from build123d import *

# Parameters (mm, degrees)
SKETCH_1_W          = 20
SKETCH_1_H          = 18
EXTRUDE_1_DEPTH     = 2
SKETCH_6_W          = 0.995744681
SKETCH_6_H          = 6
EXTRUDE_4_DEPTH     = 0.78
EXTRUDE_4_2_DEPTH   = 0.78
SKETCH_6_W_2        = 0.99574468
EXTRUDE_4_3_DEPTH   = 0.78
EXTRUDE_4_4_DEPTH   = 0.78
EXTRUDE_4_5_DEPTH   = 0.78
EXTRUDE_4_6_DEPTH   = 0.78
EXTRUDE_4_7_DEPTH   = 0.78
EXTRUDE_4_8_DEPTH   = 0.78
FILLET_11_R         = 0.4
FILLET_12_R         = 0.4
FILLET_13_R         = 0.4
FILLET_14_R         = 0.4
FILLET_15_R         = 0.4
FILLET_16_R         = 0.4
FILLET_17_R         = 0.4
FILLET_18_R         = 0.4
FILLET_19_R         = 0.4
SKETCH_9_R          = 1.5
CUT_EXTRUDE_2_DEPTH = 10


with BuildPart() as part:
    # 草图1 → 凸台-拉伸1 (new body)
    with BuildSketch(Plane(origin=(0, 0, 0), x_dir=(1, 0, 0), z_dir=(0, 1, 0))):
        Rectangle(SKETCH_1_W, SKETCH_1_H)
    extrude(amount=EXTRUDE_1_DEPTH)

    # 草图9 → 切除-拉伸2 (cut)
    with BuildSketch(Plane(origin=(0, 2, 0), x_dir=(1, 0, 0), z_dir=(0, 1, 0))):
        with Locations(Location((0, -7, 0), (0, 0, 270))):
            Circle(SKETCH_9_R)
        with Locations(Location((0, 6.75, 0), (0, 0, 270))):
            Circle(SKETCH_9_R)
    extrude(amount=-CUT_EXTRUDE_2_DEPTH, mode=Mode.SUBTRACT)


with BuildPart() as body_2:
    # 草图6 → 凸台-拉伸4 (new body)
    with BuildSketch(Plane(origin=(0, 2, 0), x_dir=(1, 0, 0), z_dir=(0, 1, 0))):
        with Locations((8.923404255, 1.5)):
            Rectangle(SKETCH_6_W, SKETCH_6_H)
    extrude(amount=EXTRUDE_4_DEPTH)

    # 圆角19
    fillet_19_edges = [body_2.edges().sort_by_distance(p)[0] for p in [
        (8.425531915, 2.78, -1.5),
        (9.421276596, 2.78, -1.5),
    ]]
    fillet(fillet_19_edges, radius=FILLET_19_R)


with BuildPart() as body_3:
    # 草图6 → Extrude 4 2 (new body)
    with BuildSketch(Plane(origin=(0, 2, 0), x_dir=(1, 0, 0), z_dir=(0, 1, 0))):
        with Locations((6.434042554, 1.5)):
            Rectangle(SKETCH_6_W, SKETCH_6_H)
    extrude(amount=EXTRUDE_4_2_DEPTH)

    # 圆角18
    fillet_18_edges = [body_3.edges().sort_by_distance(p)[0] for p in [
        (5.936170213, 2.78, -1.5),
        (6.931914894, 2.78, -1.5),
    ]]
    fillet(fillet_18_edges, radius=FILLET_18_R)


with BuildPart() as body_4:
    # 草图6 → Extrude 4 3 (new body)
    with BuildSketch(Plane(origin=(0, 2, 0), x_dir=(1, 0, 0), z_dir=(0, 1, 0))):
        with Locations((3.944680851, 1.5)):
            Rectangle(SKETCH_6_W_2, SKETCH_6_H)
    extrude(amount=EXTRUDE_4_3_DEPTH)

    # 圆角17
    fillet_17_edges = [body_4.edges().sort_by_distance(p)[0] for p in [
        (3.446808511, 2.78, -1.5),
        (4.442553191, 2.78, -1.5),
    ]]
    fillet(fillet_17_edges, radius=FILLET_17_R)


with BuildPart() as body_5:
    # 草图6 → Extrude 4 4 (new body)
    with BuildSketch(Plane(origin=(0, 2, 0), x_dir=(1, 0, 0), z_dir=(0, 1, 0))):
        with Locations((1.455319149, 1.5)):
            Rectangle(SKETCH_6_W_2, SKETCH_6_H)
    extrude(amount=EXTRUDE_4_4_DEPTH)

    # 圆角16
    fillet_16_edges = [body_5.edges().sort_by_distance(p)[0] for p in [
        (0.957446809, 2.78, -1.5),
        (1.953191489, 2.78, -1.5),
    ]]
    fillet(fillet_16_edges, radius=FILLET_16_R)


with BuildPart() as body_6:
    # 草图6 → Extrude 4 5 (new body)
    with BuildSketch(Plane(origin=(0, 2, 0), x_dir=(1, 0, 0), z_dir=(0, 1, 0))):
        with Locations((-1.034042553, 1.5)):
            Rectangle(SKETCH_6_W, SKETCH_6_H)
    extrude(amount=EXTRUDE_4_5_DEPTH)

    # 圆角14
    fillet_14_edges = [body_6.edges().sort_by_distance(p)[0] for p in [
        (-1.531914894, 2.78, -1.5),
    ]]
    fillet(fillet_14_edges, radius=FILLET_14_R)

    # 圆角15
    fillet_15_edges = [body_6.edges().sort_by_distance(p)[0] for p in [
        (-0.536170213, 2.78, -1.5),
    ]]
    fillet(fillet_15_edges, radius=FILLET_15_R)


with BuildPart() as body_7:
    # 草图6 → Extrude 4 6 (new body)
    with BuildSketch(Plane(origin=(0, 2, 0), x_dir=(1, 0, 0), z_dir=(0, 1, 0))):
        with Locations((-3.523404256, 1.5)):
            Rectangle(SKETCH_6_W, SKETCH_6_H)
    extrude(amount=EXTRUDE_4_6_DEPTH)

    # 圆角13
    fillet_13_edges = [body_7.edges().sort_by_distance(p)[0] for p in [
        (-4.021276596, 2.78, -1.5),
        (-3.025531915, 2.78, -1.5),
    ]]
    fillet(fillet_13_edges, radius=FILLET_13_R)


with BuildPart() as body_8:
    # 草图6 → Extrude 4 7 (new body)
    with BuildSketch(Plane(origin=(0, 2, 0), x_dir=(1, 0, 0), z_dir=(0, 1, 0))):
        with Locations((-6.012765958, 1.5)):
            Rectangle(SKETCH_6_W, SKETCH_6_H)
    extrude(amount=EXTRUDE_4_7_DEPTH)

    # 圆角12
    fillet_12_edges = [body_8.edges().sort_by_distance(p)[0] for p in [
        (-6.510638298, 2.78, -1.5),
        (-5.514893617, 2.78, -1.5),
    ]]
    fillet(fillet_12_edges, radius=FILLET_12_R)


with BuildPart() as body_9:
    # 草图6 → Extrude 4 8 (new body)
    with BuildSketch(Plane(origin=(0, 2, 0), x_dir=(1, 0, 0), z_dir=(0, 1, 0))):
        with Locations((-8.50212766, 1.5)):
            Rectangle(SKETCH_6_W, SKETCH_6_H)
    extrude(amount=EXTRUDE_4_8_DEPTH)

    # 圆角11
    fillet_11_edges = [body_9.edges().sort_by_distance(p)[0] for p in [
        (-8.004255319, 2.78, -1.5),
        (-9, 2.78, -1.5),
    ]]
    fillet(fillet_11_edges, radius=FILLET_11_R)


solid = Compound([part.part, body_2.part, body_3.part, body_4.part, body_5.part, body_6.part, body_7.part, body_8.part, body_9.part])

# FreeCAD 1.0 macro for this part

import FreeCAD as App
import Part
import Sketcher


def edges_at(feature, points):
    """Names of the edges that pass closest to the given points."""
    edges = feature.Shape.Edges
    near = lambda p: min(range(len(edges)), key=lambda i: edges[i].distToShape(Part.Vertex(*p))[0])
    return sorted({f"Edge{near(p) + 1}" for p in points})


def add_polygon(sketch, points):
    """Adds a closed chain of lines whose ends are joined by coincident constraints."""
    first, n = sketch.GeometryCount, len(points)
    for a, b in zip(points, points[1:] + points[:1]):
        sketch.addGeometry(Part.LineSegment(App.Vector(*a, 0), App.Vector(*b, 0)), False)
    for i in range(n):
        sketch.addConstraint(Sketcher.Constraint("Coincident", first + i, 2, first + (i + 1) % n, 1))

doc = App.newDocument("Part")
params = doc.addObject("Spreadsheet::Sheet", "Params")
for row, (alias, value) in enumerate([
    ("sketch1_width", "20 mm"),
    ("sketch1_height", "18 mm"),
    ("pad1_length", "2 mm"),
    ("sketch2_diameter", "3 mm"),
    ("pocket1_length", "10 mm"),
    ("sketch3_height", "6 mm"),
    ("pad2_length", "0.78 mm"),
    ("fillet_radius", "0.4 mm"),
    ("sketch4_height", "6 mm"),
    ("pad3_length", "0.78 mm"),
    ("fillet2_radius", "0.4 mm"),
    ("sketch5_height", "6 mm"),
    ("pad4_length", "0.78 mm"),
    ("fillet3_radius", "0.4 mm"),
    ("sketch6_height", "6 mm"),
    ("pad5_length", "0.78 mm"),
    ("fillet4_radius", "0.4 mm"),
    ("sketch7_height", "6 mm"),
    ("pad6_length", "0.78 mm"),
    ("fillet5_radius", "0.4 mm"),
    ("fillet6_radius", "0.4 mm"),
    ("sketch8_height", "6 mm"),
    ("pad7_length", "0.78 mm"),
    ("fillet7_radius", "0.4 mm"),
    ("sketch9_height", "6 mm"),
    ("pad8_length", "0.78 mm"),
    ("fillet8_radius", "0.4 mm"),
    ("sketch10_height", "6 mm"),
    ("pad9_length", "0.78 mm"),
    ("fillet9_radius", "0.4 mm"),
], start=1):
    params.set(f"A{row}", alias)
    params.set(f"B{row}", "=" + value)
    params.setAlias(f"B{row}", alias)

body = doc.addObject("PartDesign::Body", "Body")

# Sketch on XZ plane
sketch1 = body.newObject("Sketcher::SketchObject", "Sketch")
sketch1.AttachmentSupport = (doc.getObject("XZ_Plane"), [""])
sketch1.MapMode = "FlatFace"
add_polygon(sketch1, [(-10, -9), (-10, 9), (10, 9), (10, -9)])  # lines 0-3
sketch1.addConstraint(Sketcher.Constraint("Vertical", 0))
sketch1.addConstraint(Sketcher.Constraint("Horizontal", 1))
sketch1.addConstraint(Sketcher.Constraint("Vertical", 2))
sketch1.addConstraint(Sketcher.Constraint("Horizontal", 3))
sketch1.addConstraint(Sketcher.Constraint("Symmetric", 0, 2, 2, 2, -1, 1))
sketch1.addConstraint(Sketcher.Constraint("DistanceX", 1, 1, 1, 2, 20.0))
sketch1.addConstraint(Sketcher.Constraint("DistanceY", 0, 1, 0, 2, 18.0))
sketch1.setExpression("Constraints[9]", "Params.sketch1_width")
sketch1.setExpression("Constraints[10]", "Params.sketch1_height")
pad1 = body.newObject("PartDesign::Pad", "Pad")
pad1.Profile = sketch1
pad1.setExpression("Length", "Params.pad1_length")
pad1.Reversed = True

# Sketch on XZ plane
sketch2 = body.newObject("Sketcher::SketchObject", "Sketch001")
sketch2.AttachmentSupport = (doc.getObject("XZ_Plane"), [""])
sketch2.MapMode = "FlatFace"
sketch2.AttachmentOffset = App.Placement(App.Vector(0, 0, -2), App.Rotation())
sketch2.addGeometry(Part.Circle(App.Vector(0, 7, 0), App.Vector(0, 0, 1), 1.5), False)
sketch2.addGeometry(Part.Circle(App.Vector(0, -6.8, 0), App.Vector(0, 0, 1), 1.5), False)
sketch2.addConstraint(Sketcher.Constraint("Equal", 0, 1))
sketch2.addConstraint(Sketcher.Constraint("PointOnObject", 0, 3, -2))
sketch2.addConstraint(Sketcher.Constraint("PointOnObject", 1, 3, -2))
sketch2.addConstraint(Sketcher.Constraint("Diameter", 0, 3.0))
sketch2.addConstraint(Sketcher.Constraint("DistanceY", -1, 1, 0, 3, 7.0))
sketch2.addConstraint(Sketcher.Constraint("DistanceY", 1, 3, -1, 1, 6.75))
sketch2.setExpression("Constraints[3]", "Params.sketch2_diameter")
pocket1 = body.newObject("PartDesign::Pocket", "Pocket")
pocket1.Profile = sketch2
pocket1.setExpression("Length", "Params.pocket1_length")
pocket1.Reversed = True
body2 = doc.addObject("PartDesign::Body", "Body001")

# Sketch on XZ plane
sketch3 = body2.newObject("Sketcher::SketchObject", "Sketch002")
sketch3.AttachmentSupport = (doc.getObject("XZ_Plane001"), [""])
sketch3.MapMode = "FlatFace"
sketch3.AttachmentOffset = App.Placement(App.Vector(0, 0, -2), App.Rotation())
add_polygon(sketch3, [(8.4, -4.5), (8.4, 1.5), (9.4, 1.5), (9.4, -4.5)])  # lines 0-3
sketch3.addConstraint(Sketcher.Constraint("Vertical", 0))
sketch3.addConstraint(Sketcher.Constraint("Horizontal", 1))
sketch3.addConstraint(Sketcher.Constraint("Vertical", 2))
sketch3.addConstraint(Sketcher.Constraint("Horizontal", 3))
sketch3.addConstraint(Sketcher.Constraint("DistanceY", 0, 1, 0, 2, 6.0))
sketch3.addConstraint(Sketcher.Constraint("DistanceY", -1, 1, 0, 2, 1.5))
sketch3.addConstraint(Sketcher.Constraint("DistanceX", 1, 1, 1, 2, 0.995745))
sketch3.addConstraint(Sketcher.Constraint("DistanceX", -1, 1, 0, 2, 8.425532))
sketch3.setExpression("Constraints[8]", "Params.sketch3_height")
pad2 = body2.newObject("PartDesign::Pad", "Pad001")
pad2.Profile = sketch3
pad2.setExpression("Length", "Params.pad2_length")
pad2.Reversed = True
doc.recompute()

fillet = body2.newObject("PartDesign::Fillet", "Fillet")
fillet.Base = (pad2, edges_at(pad2, [(8.426, 2.78, -1.5), (9.421, 2.78, -1.5)]))
fillet.setExpression("Radius", "Params.fillet_radius")
body3 = doc.addObject("PartDesign::Body", "Body002")

# Sketch on XZ plane
sketch4 = body3.newObject("Sketcher::SketchObject", "Sketch003")
sketch4.AttachmentSupport = (doc.getObject("XZ_Plane002"), [""])
sketch4.MapMode = "FlatFace"
sketch4.AttachmentOffset = App.Placement(App.Vector(0, 0, -2), App.Rotation())
add_polygon(sketch4, [(5.9, -4.5), (5.9, 1.5), (6.9, 1.5), (6.9, -4.5)])  # lines 0-3
sketch4.addConstraint(Sketcher.Constraint("Vertical", 0))
sketch4.addConstraint(Sketcher.Constraint("Horizontal", 1))
sketch4.addConstraint(Sketcher.Constraint("Vertical", 2))
sketch4.addConstraint(Sketcher.Constraint("Horizontal", 3))
sketch4.addConstraint(Sketcher.Constraint("DistanceY", 0, 1, 0, 2, 6.0))
sketch4.addConstraint(Sketcher.Constraint("DistanceY", -1, 1, 0, 2, 1.5))
sketch4.addConstraint(Sketcher.Constraint("DistanceX", 1, 1, 1, 2, 0.995745))
sketch4.addConstraint(Sketcher.Constraint("DistanceX", -1, 1, 0, 2, 5.93617))
sketch4.setExpression("Constraints[8]", "Params.sketch4_height")
pad3 = body3.newObject("PartDesign::Pad", "Pad002")
pad3.Profile = sketch4
pad3.setExpression("Length", "Params.pad3_length")
pad3.Reversed = True
doc.recompute()

fillet2 = body3.newObject("PartDesign::Fillet", "Fillet001")
fillet2.Base = (pad3, edges_at(pad3, [(5.936, 2.78, -1.5), (6.932, 2.78, -1.5)]))
fillet2.setExpression("Radius", "Params.fillet2_radius")
body4 = doc.addObject("PartDesign::Body", "Body003")

# Sketch on XZ plane
sketch5 = body4.newObject("Sketcher::SketchObject", "Sketch004")
sketch5.AttachmentSupport = (doc.getObject("XZ_Plane003"), [""])
sketch5.MapMode = "FlatFace"
sketch5.AttachmentOffset = App.Placement(App.Vector(0, 0, -2), App.Rotation())
add_polygon(sketch5, [(3.4, -4.5), (3.4, 1.5), (4.4, 1.5), (4.4, -4.5)])  # lines 0-3
sketch5.addConstraint(Sketcher.Constraint("Vertical", 0))
sketch5.addConstraint(Sketcher.Constraint("Horizontal", 1))
sketch5.addConstraint(Sketcher.Constraint("Vertical", 2))
sketch5.addConstraint(Sketcher.Constraint("Horizontal", 3))
sketch5.addConstraint(Sketcher.Constraint("DistanceY", 0, 1, 0, 2, 6.0))
sketch5.addConstraint(Sketcher.Constraint("DistanceY", -1, 1, 0, 2, 1.5))
sketch5.addConstraint(Sketcher.Constraint("DistanceX", 1, 1, 1, 2, 0.995745))
sketch5.addConstraint(Sketcher.Constraint("DistanceX", -1, 1, 0, 2, 3.446809))
sketch5.setExpression("Constraints[8]", "Params.sketch5_height")
pad4 = body4.newObject("PartDesign::Pad", "Pad003")
pad4.Profile = sketch5
pad4.setExpression("Length", "Params.pad4_length")
pad4.Reversed = True
doc.recompute()

fillet3 = body4.newObject("PartDesign::Fillet", "Fillet002")
fillet3.Base = (pad4, edges_at(pad4, [(3.447, 2.78, -1.5), (4.443, 2.78, -1.5)]))
fillet3.setExpression("Radius", "Params.fillet3_radius")
body5 = doc.addObject("PartDesign::Body", "Body004")

# Sketch on XZ plane
sketch6 = body5.newObject("Sketcher::SketchObject", "Sketch005")
sketch6.AttachmentSupport = (doc.getObject("XZ_Plane004"), [""])
sketch6.MapMode = "FlatFace"
sketch6.AttachmentOffset = App.Placement(App.Vector(0, 0, -2), App.Rotation())
add_polygon(sketch6, [(1, -4.5), (1, 1.5), (2, 1.5), (2, -4.5)])  # lines 0-3
sketch6.addConstraint(Sketcher.Constraint("Vertical", 0))
sketch6.addConstraint(Sketcher.Constraint("Horizontal", 1))
sketch6.addConstraint(Sketcher.Constraint("Vertical", 2))
sketch6.addConstraint(Sketcher.Constraint("Horizontal", 3))
sketch6.addConstraint(Sketcher.Constraint("DistanceY", 0, 1, 0, 2, 6.0))
sketch6.addConstraint(Sketcher.Constraint("DistanceY", -1, 1, 0, 2, 1.5))
sketch6.addConstraint(Sketcher.Constraint("DistanceX", 1, 1, 1, 2, 0.995745))
sketch6.addConstraint(Sketcher.Constraint("DistanceX", -1, 1, 1, 2, 1.953191))
sketch6.setExpression("Constraints[8]", "Params.sketch6_height")
pad5 = body5.newObject("PartDesign::Pad", "Pad004")
pad5.Profile = sketch6
pad5.setExpression("Length", "Params.pad5_length")
pad5.Reversed = True
doc.recompute()

fillet4 = body5.newObject("PartDesign::Fillet", "Fillet003")
fillet4.Base = (pad5, edges_at(pad5, [(0.957, 2.78, -1.5), (1.953, 2.78, -1.5)]))
fillet4.setExpression("Radius", "Params.fillet4_radius")
body6 = doc.addObject("PartDesign::Body", "Body005")

# Sketch on XZ plane
sketch7 = body6.newObject("Sketcher::SketchObject", "Sketch006")
sketch7.AttachmentSupport = (doc.getObject("XZ_Plane005"), [""])
sketch7.MapMode = "FlatFace"
sketch7.AttachmentOffset = App.Placement(App.Vector(0, 0, -2), App.Rotation())
add_polygon(sketch7, [(-1.5, -4.5), (-1.5, 1.5), (-0.5, 1.5), (-0.5, -4.5)])  # lines 0-3
sketch7.addConstraint(Sketcher.Constraint("Vertical", 0))
sketch7.addConstraint(Sketcher.Constraint("Horizontal", 1))
sketch7.addConstraint(Sketcher.Constraint("Vertical", 2))
sketch7.addConstraint(Sketcher.Constraint("Horizontal", 3))
sketch7.addConstraint(Sketcher.Constraint("DistanceY", 0, 1, 0, 2, 6.0))
sketch7.addConstraint(Sketcher.Constraint("DistanceY", -1, 1, 0, 2, 1.5))
sketch7.addConstraint(Sketcher.Constraint("DistanceX", 1, 1, 1, 2, 0.995745))
sketch7.addConstraint(Sketcher.Constraint("DistanceX", 1, 2, -1, 1, 0.53617))
sketch7.setExpression("Constraints[8]", "Params.sketch7_height")
pad6 = body6.newObject("PartDesign::Pad", "Pad005")
pad6.Profile = sketch7
pad6.setExpression("Length", "Params.pad6_length")
pad6.Reversed = True
doc.recompute()

fillet5 = body6.newObject("PartDesign::Fillet", "Fillet004")
fillet5.Base = (pad6, edges_at(pad6, [(-1.532, 2.78, -1.5)]))
fillet5.setExpression("Radius", "Params.fillet5_radius")
doc.recompute()

fillet6 = body6.newObject("PartDesign::Fillet", "Fillet005")
fillet6.Base = (fillet5, edges_at(fillet5, [(-0.536, 2.78, -1.5)]))
fillet6.setExpression("Radius", "Params.fillet6_radius")
body7 = doc.addObject("PartDesign::Body", "Body006")

# Sketch on XZ plane
sketch8 = body7.newObject("Sketcher::SketchObject", "Sketch007")
sketch8.AttachmentSupport = (doc.getObject("XZ_Plane006"), [""])
sketch8.MapMode = "FlatFace"
sketch8.AttachmentOffset = App.Placement(App.Vector(0, 0, -2), App.Rotation())
add_polygon(sketch8, [(-4, -4.5), (-4, 1.5), (-3, 1.5), (-3, -4.5)])  # lines 0-3
sketch8.addConstraint(Sketcher.Constraint("Vertical", 0))
sketch8.addConstraint(Sketcher.Constraint("Horizontal", 1))
sketch8.addConstraint(Sketcher.Constraint("Vertical", 2))
sketch8.addConstraint(Sketcher.Constraint("Horizontal", 3))
sketch8.addConstraint(Sketcher.Constraint("DistanceY", 0, 1, 0, 2, 6.0))
sketch8.addConstraint(Sketcher.Constraint("DistanceY", -1, 1, 0, 2, 1.5))
sketch8.addConstraint(Sketcher.Constraint("DistanceX", 1, 1, 1, 2, 0.995745))
sketch8.addConstraint(Sketcher.Constraint("DistanceX", 1, 2, -1, 1, 3.025532))
sketch8.setExpression("Constraints[8]", "Params.sketch8_height")
pad7 = body7.newObject("PartDesign::Pad", "Pad006")
pad7.Profile = sketch8
pad7.setExpression("Length", "Params.pad7_length")
pad7.Reversed = True
doc.recompute()

fillet7 = body7.newObject("PartDesign::Fillet", "Fillet006")
fillet7.Base = (pad7, edges_at(pad7, [(-4.021, 2.78, -1.5), (-3.026, 2.78, -1.5)]))
fillet7.setExpression("Radius", "Params.fillet7_radius")
body8 = doc.addObject("PartDesign::Body", "Body007")

# Sketch on XZ plane
sketch9 = body8.newObject("Sketcher::SketchObject", "Sketch008")
sketch9.AttachmentSupport = (doc.getObject("XZ_Plane007"), [""])
sketch9.MapMode = "FlatFace"
sketch9.AttachmentOffset = App.Placement(App.Vector(0, 0, -2), App.Rotation())
add_polygon(sketch9, [(-6.5, -4.5), (-6.5, 1.5), (-5.5, 1.5), (-5.5, -4.5)])  # lines 0-3
sketch9.addConstraint(Sketcher.Constraint("Vertical", 0))
sketch9.addConstraint(Sketcher.Constraint("Horizontal", 1))
sketch9.addConstraint(Sketcher.Constraint("Vertical", 2))
sketch9.addConstraint(Sketcher.Constraint("Horizontal", 3))
sketch9.addConstraint(Sketcher.Constraint("DistanceY", 0, 1, 0, 2, 6.0))
sketch9.addConstraint(Sketcher.Constraint("DistanceY", -1, 1, 0, 2, 1.5))
sketch9.addConstraint(Sketcher.Constraint("DistanceX", 1, 1, 1, 2, 0.995745))
sketch9.addConstraint(Sketcher.Constraint("DistanceX", 0, 2, -1, 1, 6.510638))
sketch9.setExpression("Constraints[8]", "Params.sketch9_height")
pad8 = body8.newObject("PartDesign::Pad", "Pad007")
pad8.Profile = sketch9
pad8.setExpression("Length", "Params.pad8_length")
pad8.Reversed = True
doc.recompute()

fillet8 = body8.newObject("PartDesign::Fillet", "Fillet007")
fillet8.Base = (pad8, edges_at(pad8, [(-6.511, 2.78, -1.5), (-5.515, 2.78, -1.5)]))
fillet8.setExpression("Radius", "Params.fillet8_radius")
body9 = doc.addObject("PartDesign::Body", "Body008")

# Sketch on XZ plane
sketch10 = body9.newObject("Sketcher::SketchObject", "Sketch009")
sketch10.AttachmentSupport = (doc.getObject("XZ_Plane008"), [""])
sketch10.MapMode = "FlatFace"
sketch10.AttachmentOffset = App.Placement(App.Vector(0, 0, -2), App.Rotation())
add_polygon(sketch10, [(-9, -4.5), (-9, 1.5), (-8, 1.5), (-8, -4.5)])  # lines 0-3
sketch10.addConstraint(Sketcher.Constraint("Vertical", 0))
sketch10.addConstraint(Sketcher.Constraint("Horizontal", 1))
sketch10.addConstraint(Sketcher.Constraint("Vertical", 2))
sketch10.addConstraint(Sketcher.Constraint("Horizontal", 3))
sketch10.addConstraint(Sketcher.Constraint("DistanceY", 0, 1, 0, 2, 6.0))
sketch10.addConstraint(Sketcher.Constraint("DistanceX", 0, 2, -1, 1, 9.0))
sketch10.addConstraint(Sketcher.Constraint("DistanceY", -1, 1, 0, 2, 1.5))
sketch10.addConstraint(Sketcher.Constraint("DistanceX", 1, 1, 1, 2, 0.995745))
sketch10.setExpression("Constraints[8]", "Params.sketch10_height")
pad9 = body9.newObject("PartDesign::Pad", "Pad008")
pad9.Profile = sketch10
pad9.setExpression("Length", "Params.pad9_length")
pad9.Reversed = True
doc.recompute()

fillet9 = body9.newObject("PartDesign::Fillet", "Fillet008")
fillet9.Base = (pad9, edges_at(pad9, [(-8.004, 2.78, -1.5), (-9, 2.78, -1.5)]))
fillet9.setExpression("Radius", "Params.fillet9_radius")

doc.recompute()
